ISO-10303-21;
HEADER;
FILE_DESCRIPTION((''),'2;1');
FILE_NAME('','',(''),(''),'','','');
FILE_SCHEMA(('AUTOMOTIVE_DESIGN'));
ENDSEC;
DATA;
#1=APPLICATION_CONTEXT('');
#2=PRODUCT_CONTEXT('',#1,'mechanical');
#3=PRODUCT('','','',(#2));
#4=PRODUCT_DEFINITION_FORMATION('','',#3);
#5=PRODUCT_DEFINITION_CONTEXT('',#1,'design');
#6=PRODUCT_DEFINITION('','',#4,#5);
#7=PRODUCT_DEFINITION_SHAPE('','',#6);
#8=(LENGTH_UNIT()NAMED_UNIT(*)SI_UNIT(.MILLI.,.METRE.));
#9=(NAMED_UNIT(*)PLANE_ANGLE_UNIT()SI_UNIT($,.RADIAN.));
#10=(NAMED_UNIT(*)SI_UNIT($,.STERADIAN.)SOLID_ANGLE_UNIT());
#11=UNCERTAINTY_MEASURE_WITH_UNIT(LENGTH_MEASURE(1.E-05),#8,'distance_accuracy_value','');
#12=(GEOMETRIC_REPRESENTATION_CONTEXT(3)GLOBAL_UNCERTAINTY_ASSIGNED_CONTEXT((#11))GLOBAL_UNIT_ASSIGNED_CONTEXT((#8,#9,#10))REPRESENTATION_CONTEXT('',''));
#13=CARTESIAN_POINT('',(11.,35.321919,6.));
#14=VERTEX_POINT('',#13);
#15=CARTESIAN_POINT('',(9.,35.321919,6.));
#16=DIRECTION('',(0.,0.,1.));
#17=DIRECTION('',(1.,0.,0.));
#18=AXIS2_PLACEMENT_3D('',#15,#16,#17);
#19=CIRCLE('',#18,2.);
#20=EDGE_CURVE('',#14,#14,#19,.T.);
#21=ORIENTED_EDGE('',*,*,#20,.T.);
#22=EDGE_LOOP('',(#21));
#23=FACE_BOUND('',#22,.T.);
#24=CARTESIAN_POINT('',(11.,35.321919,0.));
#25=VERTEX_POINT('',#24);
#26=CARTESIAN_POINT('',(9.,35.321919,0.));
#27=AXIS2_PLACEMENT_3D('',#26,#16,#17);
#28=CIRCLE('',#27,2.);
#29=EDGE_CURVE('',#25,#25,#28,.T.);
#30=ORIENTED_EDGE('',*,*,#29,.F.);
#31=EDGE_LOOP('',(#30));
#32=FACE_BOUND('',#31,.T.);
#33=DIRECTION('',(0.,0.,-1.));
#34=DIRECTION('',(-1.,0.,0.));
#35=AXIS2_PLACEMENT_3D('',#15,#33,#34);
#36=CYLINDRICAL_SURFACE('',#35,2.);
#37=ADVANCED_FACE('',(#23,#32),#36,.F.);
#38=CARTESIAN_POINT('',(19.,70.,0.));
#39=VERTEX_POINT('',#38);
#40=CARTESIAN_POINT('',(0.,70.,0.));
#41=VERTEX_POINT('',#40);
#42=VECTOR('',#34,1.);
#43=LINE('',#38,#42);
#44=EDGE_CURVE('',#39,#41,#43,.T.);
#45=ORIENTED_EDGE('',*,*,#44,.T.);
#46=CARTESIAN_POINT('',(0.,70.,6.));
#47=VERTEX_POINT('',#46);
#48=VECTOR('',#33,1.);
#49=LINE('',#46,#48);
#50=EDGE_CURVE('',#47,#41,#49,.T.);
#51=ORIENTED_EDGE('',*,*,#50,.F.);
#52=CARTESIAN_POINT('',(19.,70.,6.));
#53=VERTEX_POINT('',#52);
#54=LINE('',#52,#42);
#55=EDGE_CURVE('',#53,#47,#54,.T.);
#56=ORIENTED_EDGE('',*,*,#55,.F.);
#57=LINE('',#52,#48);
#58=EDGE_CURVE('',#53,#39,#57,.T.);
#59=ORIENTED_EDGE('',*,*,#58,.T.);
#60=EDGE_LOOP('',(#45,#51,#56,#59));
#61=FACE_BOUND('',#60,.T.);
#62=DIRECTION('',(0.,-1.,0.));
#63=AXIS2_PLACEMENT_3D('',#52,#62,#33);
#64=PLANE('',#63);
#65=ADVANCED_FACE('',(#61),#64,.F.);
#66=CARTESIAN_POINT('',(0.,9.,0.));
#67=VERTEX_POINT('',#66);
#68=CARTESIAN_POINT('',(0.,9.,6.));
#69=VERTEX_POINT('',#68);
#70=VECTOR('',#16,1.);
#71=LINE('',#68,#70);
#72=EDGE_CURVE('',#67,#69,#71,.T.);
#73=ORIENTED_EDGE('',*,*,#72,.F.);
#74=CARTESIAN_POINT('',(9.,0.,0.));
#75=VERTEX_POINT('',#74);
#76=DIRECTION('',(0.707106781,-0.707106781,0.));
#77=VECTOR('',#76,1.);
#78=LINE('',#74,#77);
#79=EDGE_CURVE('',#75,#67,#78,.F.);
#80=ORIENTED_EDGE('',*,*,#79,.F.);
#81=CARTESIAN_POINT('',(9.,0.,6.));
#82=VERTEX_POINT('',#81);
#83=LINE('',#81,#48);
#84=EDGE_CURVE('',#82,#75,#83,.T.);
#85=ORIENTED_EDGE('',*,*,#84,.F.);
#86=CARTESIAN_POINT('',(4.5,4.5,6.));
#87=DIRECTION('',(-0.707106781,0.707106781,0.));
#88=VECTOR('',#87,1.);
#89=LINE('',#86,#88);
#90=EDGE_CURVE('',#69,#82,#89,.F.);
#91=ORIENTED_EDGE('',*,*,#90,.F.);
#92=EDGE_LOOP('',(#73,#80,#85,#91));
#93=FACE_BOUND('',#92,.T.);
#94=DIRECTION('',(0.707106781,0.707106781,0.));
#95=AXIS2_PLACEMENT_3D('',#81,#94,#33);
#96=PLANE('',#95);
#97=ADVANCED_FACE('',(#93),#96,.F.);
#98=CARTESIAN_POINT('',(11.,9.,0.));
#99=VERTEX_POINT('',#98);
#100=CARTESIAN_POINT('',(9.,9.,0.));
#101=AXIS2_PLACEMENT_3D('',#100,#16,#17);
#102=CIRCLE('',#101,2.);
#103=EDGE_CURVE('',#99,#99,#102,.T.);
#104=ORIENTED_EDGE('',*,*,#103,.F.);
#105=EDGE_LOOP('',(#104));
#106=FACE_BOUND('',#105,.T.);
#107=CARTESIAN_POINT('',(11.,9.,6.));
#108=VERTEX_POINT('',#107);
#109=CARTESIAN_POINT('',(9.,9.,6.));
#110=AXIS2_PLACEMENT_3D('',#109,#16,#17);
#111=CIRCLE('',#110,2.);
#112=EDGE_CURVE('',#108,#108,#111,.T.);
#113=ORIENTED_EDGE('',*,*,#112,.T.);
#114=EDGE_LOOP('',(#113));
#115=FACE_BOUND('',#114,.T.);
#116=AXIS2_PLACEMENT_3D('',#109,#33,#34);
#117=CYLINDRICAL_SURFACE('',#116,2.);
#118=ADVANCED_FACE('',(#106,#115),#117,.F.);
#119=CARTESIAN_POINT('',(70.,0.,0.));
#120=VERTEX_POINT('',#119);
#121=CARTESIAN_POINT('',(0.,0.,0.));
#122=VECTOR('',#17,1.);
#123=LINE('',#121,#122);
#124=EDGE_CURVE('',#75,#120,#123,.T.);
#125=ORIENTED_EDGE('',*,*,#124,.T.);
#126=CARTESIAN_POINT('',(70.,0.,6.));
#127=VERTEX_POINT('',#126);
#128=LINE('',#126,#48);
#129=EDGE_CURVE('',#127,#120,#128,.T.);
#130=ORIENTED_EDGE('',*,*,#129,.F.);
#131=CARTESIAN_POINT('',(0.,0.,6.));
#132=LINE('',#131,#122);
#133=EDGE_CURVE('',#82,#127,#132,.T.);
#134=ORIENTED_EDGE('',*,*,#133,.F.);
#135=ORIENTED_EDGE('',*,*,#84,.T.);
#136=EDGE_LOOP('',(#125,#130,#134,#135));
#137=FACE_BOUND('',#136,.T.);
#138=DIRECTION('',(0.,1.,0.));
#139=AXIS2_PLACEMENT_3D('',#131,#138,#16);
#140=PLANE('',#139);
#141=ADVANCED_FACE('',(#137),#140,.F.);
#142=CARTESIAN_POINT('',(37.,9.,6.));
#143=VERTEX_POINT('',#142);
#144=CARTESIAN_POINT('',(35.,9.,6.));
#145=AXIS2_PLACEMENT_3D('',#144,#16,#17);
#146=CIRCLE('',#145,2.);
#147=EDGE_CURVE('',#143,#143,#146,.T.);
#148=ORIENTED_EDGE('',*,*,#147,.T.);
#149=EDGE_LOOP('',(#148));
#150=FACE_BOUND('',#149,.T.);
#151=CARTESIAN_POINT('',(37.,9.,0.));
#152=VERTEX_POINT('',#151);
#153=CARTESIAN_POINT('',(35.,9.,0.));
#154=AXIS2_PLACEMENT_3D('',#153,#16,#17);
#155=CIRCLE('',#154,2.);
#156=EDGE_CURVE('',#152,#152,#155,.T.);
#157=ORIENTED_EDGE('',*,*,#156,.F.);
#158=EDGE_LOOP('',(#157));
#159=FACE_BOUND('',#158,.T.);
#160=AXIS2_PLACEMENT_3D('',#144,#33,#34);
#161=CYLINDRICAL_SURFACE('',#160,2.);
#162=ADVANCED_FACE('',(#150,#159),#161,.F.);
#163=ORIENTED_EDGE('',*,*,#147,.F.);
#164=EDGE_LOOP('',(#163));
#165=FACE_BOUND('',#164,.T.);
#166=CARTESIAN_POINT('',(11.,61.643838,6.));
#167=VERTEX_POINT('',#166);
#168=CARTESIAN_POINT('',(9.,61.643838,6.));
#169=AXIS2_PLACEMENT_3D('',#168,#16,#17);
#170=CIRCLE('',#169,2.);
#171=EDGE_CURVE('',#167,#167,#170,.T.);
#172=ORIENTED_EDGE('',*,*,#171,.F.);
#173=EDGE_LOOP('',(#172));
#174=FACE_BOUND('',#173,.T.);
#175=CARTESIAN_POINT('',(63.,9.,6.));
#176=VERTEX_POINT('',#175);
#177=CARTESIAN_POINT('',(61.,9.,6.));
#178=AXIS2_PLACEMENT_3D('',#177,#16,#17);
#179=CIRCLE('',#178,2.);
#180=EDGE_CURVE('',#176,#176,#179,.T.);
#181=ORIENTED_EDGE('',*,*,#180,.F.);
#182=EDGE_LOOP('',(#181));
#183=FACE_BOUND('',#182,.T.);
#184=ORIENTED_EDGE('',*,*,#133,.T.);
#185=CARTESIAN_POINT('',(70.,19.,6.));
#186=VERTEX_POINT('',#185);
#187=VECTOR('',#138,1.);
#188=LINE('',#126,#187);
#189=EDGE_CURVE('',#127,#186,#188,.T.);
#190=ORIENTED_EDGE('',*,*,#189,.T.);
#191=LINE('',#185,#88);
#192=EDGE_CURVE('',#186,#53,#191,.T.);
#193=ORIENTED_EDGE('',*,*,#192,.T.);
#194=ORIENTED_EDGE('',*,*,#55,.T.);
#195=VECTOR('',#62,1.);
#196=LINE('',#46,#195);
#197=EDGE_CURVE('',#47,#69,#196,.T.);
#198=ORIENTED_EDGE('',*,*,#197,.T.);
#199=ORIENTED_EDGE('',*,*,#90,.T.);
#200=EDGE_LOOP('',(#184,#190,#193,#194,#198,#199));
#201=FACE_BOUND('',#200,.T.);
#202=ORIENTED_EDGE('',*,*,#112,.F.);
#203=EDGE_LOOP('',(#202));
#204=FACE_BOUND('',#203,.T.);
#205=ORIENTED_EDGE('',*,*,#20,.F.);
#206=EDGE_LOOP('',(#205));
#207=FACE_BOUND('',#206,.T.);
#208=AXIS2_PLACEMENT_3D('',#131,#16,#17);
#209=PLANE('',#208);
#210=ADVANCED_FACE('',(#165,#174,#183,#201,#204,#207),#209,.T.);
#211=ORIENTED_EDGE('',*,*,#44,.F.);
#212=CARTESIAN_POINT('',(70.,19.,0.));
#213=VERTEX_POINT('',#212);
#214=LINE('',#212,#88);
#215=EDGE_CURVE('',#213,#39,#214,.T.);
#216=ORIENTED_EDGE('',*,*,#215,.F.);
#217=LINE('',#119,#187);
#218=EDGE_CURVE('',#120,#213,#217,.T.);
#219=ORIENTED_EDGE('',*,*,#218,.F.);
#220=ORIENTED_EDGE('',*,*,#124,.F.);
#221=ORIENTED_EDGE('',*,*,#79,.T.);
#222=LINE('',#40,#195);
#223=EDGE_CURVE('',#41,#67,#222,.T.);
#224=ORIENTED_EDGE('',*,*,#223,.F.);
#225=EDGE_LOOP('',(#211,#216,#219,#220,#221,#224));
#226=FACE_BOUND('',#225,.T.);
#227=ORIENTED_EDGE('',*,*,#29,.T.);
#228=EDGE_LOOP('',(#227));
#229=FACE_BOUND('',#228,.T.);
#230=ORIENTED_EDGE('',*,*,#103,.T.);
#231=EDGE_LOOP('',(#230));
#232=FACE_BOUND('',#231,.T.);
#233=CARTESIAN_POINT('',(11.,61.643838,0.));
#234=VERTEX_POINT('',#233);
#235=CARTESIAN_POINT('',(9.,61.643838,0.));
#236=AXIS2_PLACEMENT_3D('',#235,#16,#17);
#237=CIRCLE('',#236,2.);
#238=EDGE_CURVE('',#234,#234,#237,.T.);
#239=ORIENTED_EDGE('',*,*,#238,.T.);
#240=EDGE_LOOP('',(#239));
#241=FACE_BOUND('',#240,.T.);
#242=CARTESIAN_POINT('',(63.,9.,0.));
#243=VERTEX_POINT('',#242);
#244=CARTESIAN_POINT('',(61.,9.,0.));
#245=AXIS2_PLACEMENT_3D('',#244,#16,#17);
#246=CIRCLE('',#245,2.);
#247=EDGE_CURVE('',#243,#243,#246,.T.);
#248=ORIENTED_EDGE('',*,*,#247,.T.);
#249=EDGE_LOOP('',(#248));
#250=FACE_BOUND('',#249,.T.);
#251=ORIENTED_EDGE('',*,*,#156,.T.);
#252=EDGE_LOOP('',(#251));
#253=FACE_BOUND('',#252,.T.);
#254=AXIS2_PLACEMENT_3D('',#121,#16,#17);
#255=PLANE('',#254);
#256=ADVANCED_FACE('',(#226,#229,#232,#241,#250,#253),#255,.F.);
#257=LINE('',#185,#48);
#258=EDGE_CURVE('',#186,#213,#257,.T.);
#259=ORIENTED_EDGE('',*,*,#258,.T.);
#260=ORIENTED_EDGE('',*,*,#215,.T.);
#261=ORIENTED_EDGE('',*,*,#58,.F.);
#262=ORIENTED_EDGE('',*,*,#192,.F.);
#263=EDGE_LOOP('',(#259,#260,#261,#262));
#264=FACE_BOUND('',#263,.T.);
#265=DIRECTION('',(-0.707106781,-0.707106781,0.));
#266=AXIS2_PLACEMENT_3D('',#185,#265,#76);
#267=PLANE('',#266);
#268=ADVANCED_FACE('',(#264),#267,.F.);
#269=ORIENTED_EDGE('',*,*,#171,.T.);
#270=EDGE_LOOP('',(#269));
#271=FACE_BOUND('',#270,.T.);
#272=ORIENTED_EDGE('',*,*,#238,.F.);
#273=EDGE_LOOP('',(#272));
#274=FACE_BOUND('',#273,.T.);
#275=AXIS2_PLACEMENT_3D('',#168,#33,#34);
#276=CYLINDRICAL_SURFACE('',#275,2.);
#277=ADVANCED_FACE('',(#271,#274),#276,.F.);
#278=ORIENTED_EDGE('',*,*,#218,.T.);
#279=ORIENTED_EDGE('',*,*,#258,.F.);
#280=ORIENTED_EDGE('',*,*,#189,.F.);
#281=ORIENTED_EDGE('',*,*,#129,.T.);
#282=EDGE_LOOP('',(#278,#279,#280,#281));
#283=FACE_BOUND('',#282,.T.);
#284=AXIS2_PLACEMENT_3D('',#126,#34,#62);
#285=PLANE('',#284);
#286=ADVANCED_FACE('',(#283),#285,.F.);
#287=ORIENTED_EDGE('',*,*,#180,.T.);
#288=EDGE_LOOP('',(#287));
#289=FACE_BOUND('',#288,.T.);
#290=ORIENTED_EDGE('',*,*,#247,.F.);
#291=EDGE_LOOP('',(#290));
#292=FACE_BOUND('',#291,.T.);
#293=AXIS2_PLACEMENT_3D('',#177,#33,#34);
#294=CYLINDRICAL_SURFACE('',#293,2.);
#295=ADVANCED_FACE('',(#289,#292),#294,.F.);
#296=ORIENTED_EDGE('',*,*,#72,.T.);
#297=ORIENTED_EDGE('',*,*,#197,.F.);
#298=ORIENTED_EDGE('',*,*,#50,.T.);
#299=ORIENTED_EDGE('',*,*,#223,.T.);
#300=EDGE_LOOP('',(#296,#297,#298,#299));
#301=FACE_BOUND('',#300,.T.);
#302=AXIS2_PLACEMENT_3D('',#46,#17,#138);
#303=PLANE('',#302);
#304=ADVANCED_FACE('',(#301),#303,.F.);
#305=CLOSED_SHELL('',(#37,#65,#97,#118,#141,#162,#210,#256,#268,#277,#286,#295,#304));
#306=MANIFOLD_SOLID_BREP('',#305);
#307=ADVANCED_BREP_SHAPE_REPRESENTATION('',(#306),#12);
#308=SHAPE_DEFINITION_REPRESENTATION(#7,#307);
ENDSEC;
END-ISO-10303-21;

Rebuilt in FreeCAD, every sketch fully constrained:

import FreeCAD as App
import Part
import Sketcher

V = App.Vector
Q = App.Units.Quantity


def edges_at(feature, points):
    """Names of the edges that pass closest to the given points."""
    edges = feature.Shape.Edges
    near = lambda p: min(range(len(edges)), key=lambda i: edges[i].distToShape(Part.Vertex(*p))[0])
    return sorted({f"Edge{near(p) + 1}" for p in points})

doc = App.newDocument("Part")
body = doc.addObject("PartDesign::Body", "Body")

sketch1 = doc.addObject("Sketcher::SketchObject", "Sketch")
body.addObject(sketch1)
sketch1.AttachmentSupport = (doc.XY_Plane, [""])
sketch1.MapMode = "FlatFace"
sketch1.addGeometry([
    Part.LineSegment(V(0, 70, 0), V(0, 0, 0)),
    Part.LineSegment(V(0, 0, 0), V(70, 0, 0)),
    Part.LineSegment(V(70, 0, 0), V(70, 19, 0)),
    Part.LineSegment(V(70, 19, 0), V(19, 70, 0)),
    Part.LineSegment(V(19, 70, 0), V(0, 70, 0)),
    Part.Circle(V(9, 9, 0), V(0, 0, 1), 2),
    Part.Circle(V(9, 35.321919, 0), V(0, 0, 1), 2),
    Part.Circle(V(35, 9, 0), V(0, 0, 1), 2),
    Part.Circle(V(61, 9, 0), V(0, 0, 1), 2),
    Part.Circle(V(9, 61.643838, 0), V(0, 0, 1), 2),
], False)
sketch1.addConstraint([
    Sketcher.Constraint("Coincident", 0, 2, 1, 1),
    Sketcher.Constraint("Coincident", 1, 2, 2, 1),
    Sketcher.Constraint("Coincident", 2, 2, 3, 1),
    Sketcher.Constraint("Coincident", 3, 2, 4, 1),
    Sketcher.Constraint("Coincident", 4, 2, 0, 1),
    Sketcher.Constraint("Vertical", 0),
    Sketcher.Constraint("Horizontal", 1),
    Sketcher.Constraint("Vertical", 2),
    Sketcher.Constraint("Horizontal", 4),
    Sketcher.Constraint("Coincident", 0, 2, -1, 1),
    Sketcher.Constraint("Equal", 5, 6),
    Sketcher.Constraint("Equal", 6, 7),
    Sketcher.Constraint("Equal", 7, 8),
    Sketcher.Constraint("Equal", 8, 9),
    Sketcher.Constraint("Horizontal", 5, 3, 7, 3),
    Sketcher.Constraint("Horizontal", 7, 3, 8, 3),
    Sketcher.Constraint("Vertical", 5, 3, 6, 3),
    Sketcher.Constraint("Vertical", 6, 3, 9, 3),
    Sketcher.Constraint("Equal", 1, 0),
    Sketcher.Constraint("Equal", 4, 2),
    Sketcher.Constraint("Diameter", 5, Q("4 mm")),
    Sketcher.Constraint("DistanceX", 1, 1, 1, 2, Q("70 mm")),
    Sketcher.Constraint("DistanceX", 4, 2, 4, 1, Q("19 mm")),
    Sketcher.Constraint("DistanceX", -1, 1, 5, 3, Q("9 mm")),
    Sketcher.Constraint("DistanceY", -1, 1, 5, 3, Q("9 mm")),
    Sketcher.Constraint("DistanceX", -1, 1, 7, 3, Q("35 mm")),
    Sketcher.Constraint("DistanceX", -1, 1, 8, 3, Q("61 mm")),
    Sketcher.Constraint("DistanceY", -1, 1, 6, 3, Q("35.321919 mm")),
    Sketcher.Constraint("DistanceY", 6, 3, 9, 3, Q("26.321919 mm")),
])
pad1 = doc.addObject("PartDesign::Pad", "Pad")
body.addObject(pad1)
pad1.Profile = sketch1
pad1.Length = 6
doc.recompute()

chamfer = doc.addObject("PartDesign::Chamfer", "Chamfer")
body.addObject(chamfer)
chamfer.Base = (pad1, edges_at(pad1, [(0, 0, 3)]))
chamfer.Size = 9

doc.recompute()
